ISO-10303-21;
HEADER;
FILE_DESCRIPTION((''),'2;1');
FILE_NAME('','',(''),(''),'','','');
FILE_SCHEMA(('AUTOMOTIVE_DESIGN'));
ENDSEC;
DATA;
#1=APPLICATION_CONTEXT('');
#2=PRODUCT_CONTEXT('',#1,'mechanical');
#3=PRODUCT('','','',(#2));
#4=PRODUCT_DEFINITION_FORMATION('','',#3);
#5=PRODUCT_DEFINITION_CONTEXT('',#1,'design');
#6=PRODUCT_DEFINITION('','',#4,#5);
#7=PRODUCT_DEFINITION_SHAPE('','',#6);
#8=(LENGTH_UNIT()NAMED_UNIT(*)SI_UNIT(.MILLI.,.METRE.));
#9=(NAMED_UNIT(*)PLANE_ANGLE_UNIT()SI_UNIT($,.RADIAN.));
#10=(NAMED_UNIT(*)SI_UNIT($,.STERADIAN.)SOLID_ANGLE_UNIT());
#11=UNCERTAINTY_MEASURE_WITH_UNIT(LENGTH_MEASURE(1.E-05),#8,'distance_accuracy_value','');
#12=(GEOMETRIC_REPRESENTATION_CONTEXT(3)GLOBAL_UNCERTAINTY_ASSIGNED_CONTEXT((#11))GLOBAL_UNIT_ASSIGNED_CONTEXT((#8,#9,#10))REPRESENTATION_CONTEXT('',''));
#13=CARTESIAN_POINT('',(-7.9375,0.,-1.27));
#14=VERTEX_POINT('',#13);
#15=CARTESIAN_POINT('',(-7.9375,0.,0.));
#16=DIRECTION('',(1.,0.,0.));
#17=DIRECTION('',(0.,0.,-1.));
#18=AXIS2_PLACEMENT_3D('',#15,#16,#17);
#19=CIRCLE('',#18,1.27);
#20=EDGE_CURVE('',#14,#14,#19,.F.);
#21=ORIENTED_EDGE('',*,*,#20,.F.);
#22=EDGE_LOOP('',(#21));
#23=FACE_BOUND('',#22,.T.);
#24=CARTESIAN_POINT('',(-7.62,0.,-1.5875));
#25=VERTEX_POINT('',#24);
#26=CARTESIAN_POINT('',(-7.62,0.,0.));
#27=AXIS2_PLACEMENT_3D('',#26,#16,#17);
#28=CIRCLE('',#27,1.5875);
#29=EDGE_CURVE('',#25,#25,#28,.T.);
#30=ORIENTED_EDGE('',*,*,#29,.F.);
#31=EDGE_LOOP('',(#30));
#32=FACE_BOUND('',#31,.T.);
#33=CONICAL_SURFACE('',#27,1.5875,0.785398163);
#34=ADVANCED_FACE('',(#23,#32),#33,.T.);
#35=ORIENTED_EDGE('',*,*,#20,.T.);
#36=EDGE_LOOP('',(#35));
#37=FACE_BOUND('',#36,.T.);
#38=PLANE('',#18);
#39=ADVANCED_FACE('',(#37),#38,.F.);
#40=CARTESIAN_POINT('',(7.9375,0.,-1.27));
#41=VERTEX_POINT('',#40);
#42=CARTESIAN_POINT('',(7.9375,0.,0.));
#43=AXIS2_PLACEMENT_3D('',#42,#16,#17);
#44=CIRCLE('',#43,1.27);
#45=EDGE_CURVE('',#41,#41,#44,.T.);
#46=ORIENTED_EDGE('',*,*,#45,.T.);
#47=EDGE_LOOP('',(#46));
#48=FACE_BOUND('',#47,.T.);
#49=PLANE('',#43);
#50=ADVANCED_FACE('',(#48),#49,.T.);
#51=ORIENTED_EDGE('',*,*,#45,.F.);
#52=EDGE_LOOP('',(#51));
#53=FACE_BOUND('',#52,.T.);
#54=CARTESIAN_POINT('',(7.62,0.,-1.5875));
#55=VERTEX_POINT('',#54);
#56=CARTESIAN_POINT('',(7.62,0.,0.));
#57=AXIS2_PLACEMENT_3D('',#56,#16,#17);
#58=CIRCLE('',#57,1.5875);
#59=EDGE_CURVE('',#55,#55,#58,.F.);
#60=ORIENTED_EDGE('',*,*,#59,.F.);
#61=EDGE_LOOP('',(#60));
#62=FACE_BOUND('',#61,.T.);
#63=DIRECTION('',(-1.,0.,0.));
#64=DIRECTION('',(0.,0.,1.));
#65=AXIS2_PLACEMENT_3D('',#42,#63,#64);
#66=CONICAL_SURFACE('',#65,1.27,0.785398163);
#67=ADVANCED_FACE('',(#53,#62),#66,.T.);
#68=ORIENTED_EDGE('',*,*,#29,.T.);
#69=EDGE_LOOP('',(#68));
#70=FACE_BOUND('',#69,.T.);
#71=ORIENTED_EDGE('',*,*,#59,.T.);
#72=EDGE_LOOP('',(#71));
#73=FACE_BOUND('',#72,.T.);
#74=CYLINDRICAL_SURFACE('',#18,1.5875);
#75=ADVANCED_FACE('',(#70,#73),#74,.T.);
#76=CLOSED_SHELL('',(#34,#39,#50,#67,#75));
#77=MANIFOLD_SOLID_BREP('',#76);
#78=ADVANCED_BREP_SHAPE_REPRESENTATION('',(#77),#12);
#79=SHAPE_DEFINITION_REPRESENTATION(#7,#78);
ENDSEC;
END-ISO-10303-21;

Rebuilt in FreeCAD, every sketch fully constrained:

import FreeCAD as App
import Part
import Sketcher
from FreeCAD import Vector
Q = App.Units.Quantity


def edges_at(feature, points):
    """Names of the edges that pass closest to the given points."""
    edges = feature.Shape.Edges
    near = lambda p: min(range(len(edges)), key=lambda i: edges[i].distToShape(Part.Vertex(*p))[0])
    return sorted({f"Edge{near(p) + 1}" for p in points})

doc = App.newDocument("Part")
params = doc.addObject("Spreadsheet::Sheet", "Params")
for row, (alias, value) in enumerate([
    ("sketch1_diameter", "0.125 in"),
    ("pad1_length", "0.3125 in"),
    ("pad1_length2", "0.3125 in"),
    ("chamfer_size", "0.0125 in"),
], start=1):
    params.set(f"A{row}", alias)
    params.set(f"B{row}", "=" + value)
    params.setAlias(f"B{row}", alias)

body = doc.addObject("PartDesign::Body", "Body")

sketch1 = body.newObject("Sketcher::SketchObject", "Sketch")
sketch1.AttachmentSupport = (doc.getObject("YZ_Plane"), [""])
sketch1.MapMode = "FlatFace"
sketch1.addGeometry(Part.Circle(Vector(0, 0, 0), Vector(0, 0, 1), 1.6), False)
sketch1.addConstraint([
    Sketcher.Constraint("Coincident", 0, 3, -1, 1),
    Sketcher.Constraint("Diameter", 0, Q("0.125 in")),
])
sketch1.setExpression("Constraints[1]", "Params.sketch1_diameter")
pad1 = body.newObject("PartDesign::Pad", "Pad")
pad1.Profile = sketch1
pad1.Type = "TwoLengths"
pad1.setExpression("Length", "Params.pad1_length")
pad1.setExpression("Length2", "Params.pad1_length2")
doc.recompute()

chamfer = body.newObject("PartDesign::Chamfer", "Chamfer")
chamfer.Base = (pad1, edges_at(pad1, [(-7.938, 0, 1.587), (7.938, 0, 1.587)]))
chamfer.setExpression("Size", "Params.chamfer_size")

doc.recompute()
